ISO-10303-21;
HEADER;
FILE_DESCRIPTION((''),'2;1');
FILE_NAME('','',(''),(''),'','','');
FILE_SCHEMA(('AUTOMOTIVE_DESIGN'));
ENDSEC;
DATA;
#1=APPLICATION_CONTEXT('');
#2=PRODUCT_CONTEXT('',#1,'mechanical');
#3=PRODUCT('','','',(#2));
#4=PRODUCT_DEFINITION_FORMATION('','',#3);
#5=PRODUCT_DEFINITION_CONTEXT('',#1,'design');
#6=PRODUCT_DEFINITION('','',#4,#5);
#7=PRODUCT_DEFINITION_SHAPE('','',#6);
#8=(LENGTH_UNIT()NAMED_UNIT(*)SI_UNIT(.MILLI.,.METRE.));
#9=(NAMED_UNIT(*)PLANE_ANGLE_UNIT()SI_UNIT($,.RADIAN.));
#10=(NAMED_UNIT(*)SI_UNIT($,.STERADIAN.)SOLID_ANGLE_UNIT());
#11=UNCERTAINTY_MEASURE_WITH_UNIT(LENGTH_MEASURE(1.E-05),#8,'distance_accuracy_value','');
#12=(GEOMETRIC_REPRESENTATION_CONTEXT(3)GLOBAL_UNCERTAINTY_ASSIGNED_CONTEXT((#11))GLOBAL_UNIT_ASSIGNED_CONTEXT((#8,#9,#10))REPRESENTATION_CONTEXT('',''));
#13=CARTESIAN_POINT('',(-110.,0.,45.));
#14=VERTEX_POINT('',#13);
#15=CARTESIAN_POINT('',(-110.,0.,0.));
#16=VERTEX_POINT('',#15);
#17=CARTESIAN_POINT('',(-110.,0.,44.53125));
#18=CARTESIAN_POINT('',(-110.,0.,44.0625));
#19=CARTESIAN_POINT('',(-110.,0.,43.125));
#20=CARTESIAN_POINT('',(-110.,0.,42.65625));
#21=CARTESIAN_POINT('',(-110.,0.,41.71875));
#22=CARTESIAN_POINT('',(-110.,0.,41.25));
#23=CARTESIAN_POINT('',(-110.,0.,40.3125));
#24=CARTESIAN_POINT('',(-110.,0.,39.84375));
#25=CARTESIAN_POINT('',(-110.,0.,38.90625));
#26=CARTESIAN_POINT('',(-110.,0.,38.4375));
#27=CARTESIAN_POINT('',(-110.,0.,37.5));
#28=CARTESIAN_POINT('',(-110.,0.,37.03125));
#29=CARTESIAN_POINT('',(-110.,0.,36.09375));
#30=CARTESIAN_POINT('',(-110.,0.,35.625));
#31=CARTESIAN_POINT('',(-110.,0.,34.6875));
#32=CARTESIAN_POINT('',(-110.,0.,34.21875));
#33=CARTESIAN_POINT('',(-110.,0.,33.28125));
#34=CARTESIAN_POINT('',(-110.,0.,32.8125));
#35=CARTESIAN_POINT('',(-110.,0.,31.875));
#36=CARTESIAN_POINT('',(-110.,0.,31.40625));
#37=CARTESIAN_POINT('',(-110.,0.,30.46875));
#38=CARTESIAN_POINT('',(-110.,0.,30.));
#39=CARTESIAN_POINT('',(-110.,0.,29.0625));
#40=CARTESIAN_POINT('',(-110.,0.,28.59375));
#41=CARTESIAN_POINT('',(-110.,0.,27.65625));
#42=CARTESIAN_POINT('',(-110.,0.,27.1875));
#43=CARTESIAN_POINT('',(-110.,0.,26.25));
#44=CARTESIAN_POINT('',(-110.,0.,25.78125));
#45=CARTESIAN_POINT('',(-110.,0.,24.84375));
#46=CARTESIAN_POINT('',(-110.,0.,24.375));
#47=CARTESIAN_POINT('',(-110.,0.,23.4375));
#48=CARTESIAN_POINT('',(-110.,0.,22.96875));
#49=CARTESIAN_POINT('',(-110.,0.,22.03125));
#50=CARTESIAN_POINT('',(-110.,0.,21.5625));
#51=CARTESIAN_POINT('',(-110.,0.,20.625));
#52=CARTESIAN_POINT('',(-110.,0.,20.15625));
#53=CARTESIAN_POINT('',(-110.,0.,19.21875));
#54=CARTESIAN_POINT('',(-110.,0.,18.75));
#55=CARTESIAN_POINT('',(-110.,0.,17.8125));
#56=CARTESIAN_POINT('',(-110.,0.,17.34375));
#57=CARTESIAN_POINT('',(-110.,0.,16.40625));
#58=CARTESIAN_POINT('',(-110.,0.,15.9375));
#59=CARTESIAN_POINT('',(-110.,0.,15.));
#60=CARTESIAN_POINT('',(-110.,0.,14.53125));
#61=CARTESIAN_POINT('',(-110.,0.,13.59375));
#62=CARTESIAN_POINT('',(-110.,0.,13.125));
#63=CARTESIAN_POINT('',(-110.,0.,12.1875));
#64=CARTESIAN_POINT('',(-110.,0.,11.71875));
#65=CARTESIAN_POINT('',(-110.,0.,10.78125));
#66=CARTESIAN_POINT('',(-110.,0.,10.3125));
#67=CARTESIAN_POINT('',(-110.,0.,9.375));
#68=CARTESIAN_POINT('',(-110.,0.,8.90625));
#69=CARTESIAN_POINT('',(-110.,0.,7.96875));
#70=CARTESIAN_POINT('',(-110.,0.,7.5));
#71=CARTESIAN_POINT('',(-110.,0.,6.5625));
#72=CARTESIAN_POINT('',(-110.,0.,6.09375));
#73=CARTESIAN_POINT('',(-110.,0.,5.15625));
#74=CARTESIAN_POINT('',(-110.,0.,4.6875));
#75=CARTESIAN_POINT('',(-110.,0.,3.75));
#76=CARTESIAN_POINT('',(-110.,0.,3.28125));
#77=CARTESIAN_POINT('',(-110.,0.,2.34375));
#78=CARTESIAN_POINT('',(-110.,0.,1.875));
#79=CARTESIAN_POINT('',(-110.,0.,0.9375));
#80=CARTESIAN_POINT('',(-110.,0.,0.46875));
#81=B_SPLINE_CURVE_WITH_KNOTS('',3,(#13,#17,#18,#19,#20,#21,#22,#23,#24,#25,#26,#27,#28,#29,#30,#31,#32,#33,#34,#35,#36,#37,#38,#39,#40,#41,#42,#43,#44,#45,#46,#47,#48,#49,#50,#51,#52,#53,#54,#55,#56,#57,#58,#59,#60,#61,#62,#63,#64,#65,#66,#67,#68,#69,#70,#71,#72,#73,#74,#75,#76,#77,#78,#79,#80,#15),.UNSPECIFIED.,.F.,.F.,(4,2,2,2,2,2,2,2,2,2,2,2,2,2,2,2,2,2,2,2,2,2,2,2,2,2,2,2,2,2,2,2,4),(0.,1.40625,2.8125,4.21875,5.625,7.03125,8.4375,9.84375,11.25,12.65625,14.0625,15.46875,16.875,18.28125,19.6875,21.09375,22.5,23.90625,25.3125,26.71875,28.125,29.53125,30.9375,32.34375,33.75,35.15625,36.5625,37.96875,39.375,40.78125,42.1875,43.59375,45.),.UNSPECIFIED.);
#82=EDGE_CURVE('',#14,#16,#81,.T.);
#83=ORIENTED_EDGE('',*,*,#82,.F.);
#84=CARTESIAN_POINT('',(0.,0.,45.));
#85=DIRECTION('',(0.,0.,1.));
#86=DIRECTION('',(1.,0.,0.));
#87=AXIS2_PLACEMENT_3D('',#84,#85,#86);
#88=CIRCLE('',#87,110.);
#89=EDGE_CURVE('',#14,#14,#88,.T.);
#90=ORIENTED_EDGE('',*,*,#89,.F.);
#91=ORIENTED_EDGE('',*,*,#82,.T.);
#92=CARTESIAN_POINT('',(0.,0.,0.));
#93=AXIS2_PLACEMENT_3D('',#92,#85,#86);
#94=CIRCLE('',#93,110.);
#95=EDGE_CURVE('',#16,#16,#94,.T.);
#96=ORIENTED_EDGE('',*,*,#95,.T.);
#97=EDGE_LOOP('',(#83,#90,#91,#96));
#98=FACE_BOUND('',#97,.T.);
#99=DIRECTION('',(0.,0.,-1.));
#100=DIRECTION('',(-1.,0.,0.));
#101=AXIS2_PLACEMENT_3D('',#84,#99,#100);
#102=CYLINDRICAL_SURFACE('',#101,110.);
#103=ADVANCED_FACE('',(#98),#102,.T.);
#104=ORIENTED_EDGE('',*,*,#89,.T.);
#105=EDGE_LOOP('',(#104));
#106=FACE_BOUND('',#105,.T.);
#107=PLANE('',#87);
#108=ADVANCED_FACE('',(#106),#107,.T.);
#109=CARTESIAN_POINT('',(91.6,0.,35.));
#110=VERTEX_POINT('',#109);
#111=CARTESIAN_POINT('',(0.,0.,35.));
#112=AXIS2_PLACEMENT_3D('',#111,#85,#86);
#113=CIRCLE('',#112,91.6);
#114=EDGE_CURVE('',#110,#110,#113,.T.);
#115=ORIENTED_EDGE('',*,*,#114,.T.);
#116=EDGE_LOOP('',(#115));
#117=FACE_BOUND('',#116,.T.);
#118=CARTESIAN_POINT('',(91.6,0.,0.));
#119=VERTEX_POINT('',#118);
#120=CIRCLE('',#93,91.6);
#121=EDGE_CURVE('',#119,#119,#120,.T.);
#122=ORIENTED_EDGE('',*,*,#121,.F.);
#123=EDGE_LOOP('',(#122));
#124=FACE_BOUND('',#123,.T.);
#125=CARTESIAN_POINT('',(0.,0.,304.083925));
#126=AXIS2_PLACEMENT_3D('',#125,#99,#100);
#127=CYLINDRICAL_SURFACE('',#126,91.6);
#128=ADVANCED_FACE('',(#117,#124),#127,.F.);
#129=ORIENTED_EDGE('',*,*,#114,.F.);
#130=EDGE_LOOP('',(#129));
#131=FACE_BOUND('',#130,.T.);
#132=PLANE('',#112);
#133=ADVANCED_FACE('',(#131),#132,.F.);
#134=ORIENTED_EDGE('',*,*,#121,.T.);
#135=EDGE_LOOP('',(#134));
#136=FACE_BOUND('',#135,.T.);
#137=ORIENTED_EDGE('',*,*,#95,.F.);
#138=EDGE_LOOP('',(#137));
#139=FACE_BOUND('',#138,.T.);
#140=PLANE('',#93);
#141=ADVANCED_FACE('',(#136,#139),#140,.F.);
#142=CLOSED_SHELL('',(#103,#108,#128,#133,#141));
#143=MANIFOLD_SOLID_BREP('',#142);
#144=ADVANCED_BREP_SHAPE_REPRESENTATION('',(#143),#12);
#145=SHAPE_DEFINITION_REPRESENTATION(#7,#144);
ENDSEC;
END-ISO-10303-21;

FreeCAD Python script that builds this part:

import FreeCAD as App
import Part
import Sketcher

V = App.Vector
Q = App.Units.Quantity

doc = App.newDocument("Part")
body = doc.addObject("PartDesign::Body", "Body")

# Sketch on XY plane
sketch1 = body.newObject("Sketcher::SketchObject", "Sketch")
sketch1.AttachmentSupport = (doc.getObject("XY_Plane"), [""])
sketch1.MapMode = "FlatFace"
sketch1.addGeometry(Part.Circle(V(0, 0, 0), V(0, 0, 1), 110), False)
sketch1.addConstraint([
    Sketcher.Constraint("Coincident", 0, 3, -1, 1),
    Sketcher.Constraint("Diameter", 0, Q("220 mm")),
])
pad1 = body.newObject("PartDesign::Pad", "Pad")
pad1.Profile = sketch1
pad1.Length = 45

# Sketch on XY plane
sketch2 = body.newObject("Sketcher::SketchObject", "Sketch001")
sketch2.AttachmentSupport = (doc.getObject("XY_Plane"), [""])
sketch2.MapMode = "FlatFace"
sketch2.addGeometry(Part.Circle(V(0, 0, 0), V(0, 0, 1), 91.6), False)
sketch2.addConstraint([
    Sketcher.Constraint("Coincident", 0, 3, -1, 1),
    Sketcher.Constraint("Diameter", 0, Q("183.2 mm")),
])
pocket1 = body.newObject("PartDesign::Pocket", "Pocket")
pocket1.Profile = sketch2
pocket1.Length = 35
pocket1.Reversed = True

doc.recompute()
